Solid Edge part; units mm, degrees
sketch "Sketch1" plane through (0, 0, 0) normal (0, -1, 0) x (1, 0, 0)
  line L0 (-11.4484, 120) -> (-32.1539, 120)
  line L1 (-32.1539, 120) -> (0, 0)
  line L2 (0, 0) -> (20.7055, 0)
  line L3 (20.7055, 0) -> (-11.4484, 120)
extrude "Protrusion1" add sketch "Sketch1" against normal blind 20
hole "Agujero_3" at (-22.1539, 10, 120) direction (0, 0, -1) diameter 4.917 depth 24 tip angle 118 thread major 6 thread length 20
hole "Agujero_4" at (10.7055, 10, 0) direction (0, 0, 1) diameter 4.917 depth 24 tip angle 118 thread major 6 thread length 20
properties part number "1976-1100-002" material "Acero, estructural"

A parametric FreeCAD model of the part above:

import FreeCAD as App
import Part
import Sketcher
Q = App.Units.Quantity


def add_polygon(sketch, points):
    """Adds a closed chain of lines whose ends are joined by coincident constraints."""
    first, n = sketch.GeometryCount, len(points)
    for a, b in zip(points, points[1:] + points[:1]):
        sketch.addGeometry(Part.LineSegment(App.Vector(*a, 0), App.Vector(*b, 0)), False)
    for i in range(n):
        sketch.addConstraint(Sketcher.Constraint("Coincident", first + i, 2, first + (i + 1) % n, 1))

doc = App.newDocument("Part")
body = doc.addObject("PartDesign::Body", "Body")

sketch1 = doc.addObject("Sketcher::SketchObject", "Sketch")
body.addObject(sketch1)
sketch1.AttachmentSupport = (doc.XZ_Plane, [""])
sketch1.MapMode = "FlatFace"
add_polygon(sketch1, [(21, 0), (-11, 120), (-32, 120), (0, 0)])
sketch1.addConstraint(Sketcher.Constraint("Horizontal", 1))
sketch1.addConstraint(Sketcher.Constraint("Horizontal", 3))
sketch1.addConstraint(Sketcher.Constraint("Coincident", 2, 2, -1, 1))
sketch1.addConstraint(Sketcher.Constraint("Parallel", 0, 2))
sketch1.addConstraint(Sketcher.Constraint("Angle", 0, Q("105 deg")))
sketch1.addConstraint(Sketcher.Constraint("DistanceY", -1, 1, 0, 2, Q("120 mm")))
sketch1.addConstraint(Sketcher.Constraint("DistanceX", 1, 2, 1, 1, Q("20.7055 mm")))
pad1 = doc.addObject("PartDesign::Pad", "Pad")
body.addObject(pad1)
pad1.Profile = sketch1
pad1.Length = 20
pad1.Reversed = True

sketch2 = doc.addObject("Sketcher::SketchObject", "Sketch001")
body.addObject(sketch2)
sketch2.AttachmentSupport = (doc.XY_Plane, [""])
sketch2.MapMode = "FlatFace"
sketch2.AttachmentOffset = App.Placement(App.Vector(0, 0, 120), App.Rotation())
sketch2.addGeometry(Part.Circle(App.Vector(-22.2, 10, 0), App.Vector(0, 0, 1), 2.5), False)
sketch2.addConstraint(Sketcher.Constraint("Diameter", 0, Q("4.917 mm")))
sketch2.addConstraint(Sketcher.Constraint("DistanceY", -1, 1, 0, 3, Q("10 mm")))
sketch2.addConstraint(Sketcher.Constraint("DistanceX", 0, 3, -1, 1, Q("22.154 mm")))
doc.recompute()
hole = doc.addObject("PartDesign::Hole", "Hole")
body.addObject(hole)
hole.Profile = sketch2
hole.ThreadType = "None"
hole.Diameter = 4.917
hole.DepthType = "Dimension"
hole.Depth = 24
hole.DrillPoint = "Angled"
hole.DrillPointAngle = 118

sketch3 = doc.addObject("Sketcher::SketchObject", "Sketch002")
body.addObject(sketch3)
sketch3.AttachmentSupport = (doc.XY_Plane, [""])
sketch3.MapMode = "FlatFace"
sketch3.addGeometry(Part.Circle(App.Vector(10.7, 10, 0), App.Vector(0, 0, 1), 2.5), False)
sketch3.addConstraint(Sketcher.Constraint("Diameter", 0, Q("4.917 mm")))
sketch3.addConstraint(Sketcher.Constraint("DistanceY", -1, 1, 0, 3, Q("10 mm")))
sketch3.addConstraint(Sketcher.Constraint("DistanceX", -1, 1, 0, 3, Q("10.7055 mm")))
doc.recompute()
hole2 = doc.addObject("PartDesign::Hole", "Hole001")
body.addObject(hole2)
hole2.Profile = sketch3
hole2.ThreadType = "None"
hole2.Diameter = 4.917
hole2.DepthType = "Dimension"
hole2.Depth = 24
hole2.DrillPoint = "Angled"
hole2.DrillPointAngle = 118
hole2.Reversed = True

doc.recompute()
